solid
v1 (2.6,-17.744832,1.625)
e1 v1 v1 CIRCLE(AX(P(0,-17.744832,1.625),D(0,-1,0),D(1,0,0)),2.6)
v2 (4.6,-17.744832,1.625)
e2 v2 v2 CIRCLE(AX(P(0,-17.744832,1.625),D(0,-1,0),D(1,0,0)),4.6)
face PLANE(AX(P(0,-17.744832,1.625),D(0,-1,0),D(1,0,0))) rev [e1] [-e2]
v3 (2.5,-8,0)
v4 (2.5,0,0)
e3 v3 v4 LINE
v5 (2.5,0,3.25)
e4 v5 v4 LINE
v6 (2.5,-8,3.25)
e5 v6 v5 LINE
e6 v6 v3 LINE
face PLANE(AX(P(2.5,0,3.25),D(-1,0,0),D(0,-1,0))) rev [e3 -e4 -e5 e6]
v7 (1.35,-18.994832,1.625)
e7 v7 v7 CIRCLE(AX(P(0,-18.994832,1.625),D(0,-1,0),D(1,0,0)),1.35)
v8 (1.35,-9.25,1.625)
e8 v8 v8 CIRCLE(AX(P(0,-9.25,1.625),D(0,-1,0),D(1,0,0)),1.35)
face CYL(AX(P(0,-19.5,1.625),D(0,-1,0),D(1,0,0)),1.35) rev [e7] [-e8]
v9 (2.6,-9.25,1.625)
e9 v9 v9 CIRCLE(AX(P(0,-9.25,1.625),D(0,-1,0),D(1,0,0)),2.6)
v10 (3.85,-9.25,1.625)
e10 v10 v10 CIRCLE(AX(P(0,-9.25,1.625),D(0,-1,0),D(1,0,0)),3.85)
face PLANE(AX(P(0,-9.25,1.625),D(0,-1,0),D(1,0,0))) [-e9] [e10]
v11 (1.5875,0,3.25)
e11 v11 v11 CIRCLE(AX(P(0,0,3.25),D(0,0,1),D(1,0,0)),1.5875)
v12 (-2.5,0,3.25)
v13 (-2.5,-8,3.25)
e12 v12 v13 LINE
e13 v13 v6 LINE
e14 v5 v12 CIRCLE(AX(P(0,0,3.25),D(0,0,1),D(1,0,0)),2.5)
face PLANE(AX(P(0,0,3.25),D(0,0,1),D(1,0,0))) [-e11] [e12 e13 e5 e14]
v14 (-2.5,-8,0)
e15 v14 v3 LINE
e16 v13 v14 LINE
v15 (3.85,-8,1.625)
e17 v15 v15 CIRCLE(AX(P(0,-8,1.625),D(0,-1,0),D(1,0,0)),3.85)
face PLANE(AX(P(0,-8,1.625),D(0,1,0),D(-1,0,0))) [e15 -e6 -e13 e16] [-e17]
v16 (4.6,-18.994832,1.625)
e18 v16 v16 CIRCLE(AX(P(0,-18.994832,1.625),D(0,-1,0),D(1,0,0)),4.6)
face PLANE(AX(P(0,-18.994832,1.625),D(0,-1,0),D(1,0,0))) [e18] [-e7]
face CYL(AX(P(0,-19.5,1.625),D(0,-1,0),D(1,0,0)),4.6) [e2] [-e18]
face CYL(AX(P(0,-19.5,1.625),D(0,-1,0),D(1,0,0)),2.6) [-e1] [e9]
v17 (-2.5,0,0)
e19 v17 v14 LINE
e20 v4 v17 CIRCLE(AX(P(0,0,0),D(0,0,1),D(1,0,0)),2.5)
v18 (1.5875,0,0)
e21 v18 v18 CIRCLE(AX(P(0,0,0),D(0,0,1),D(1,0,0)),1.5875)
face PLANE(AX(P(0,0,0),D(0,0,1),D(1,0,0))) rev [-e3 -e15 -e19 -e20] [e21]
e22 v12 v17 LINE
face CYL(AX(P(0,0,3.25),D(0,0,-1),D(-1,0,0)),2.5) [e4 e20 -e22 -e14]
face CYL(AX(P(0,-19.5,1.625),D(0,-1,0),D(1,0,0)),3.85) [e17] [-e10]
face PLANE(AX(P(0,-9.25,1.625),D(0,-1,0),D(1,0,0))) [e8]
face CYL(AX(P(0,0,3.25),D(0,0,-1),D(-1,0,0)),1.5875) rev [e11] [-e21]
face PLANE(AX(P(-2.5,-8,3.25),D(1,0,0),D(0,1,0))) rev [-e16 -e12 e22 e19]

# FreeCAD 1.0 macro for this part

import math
import FreeCAD as App
import Part
import Sketcher
Q = App.Units.Quantity


def add_polygon(sketch, points):
    """Adds a closed chain of lines whose ends are joined by coincident constraints."""
    first, n = sketch.GeometryCount, len(points)
    for a, b in zip(points, points[1:] + points[:1]):
        sketch.addGeometry(Part.LineSegment(App.Vector(*a, 0), App.Vector(*b, 0)), False)
    for i in range(n):
        sketch.addConstraint(Sketcher.Constraint("Coincident", first + i, 2, first + (i + 1) % n, 1))

doc = App.newDocument("Part")
body = doc.addObject("PartDesign::Body", "Body")

sketch1 = body.newObject("Sketcher::SketchObject", "Sketch")
sketch1.AttachmentSupport = (doc.getObject("XY_Plane"), [""])
sketch1.MapMode = "FlatFace"
sketch1.addGeometry([
    Part.LineSegment(App.Vector(2.5, -8, 0), App.Vector(2.5, 0, 0)),
    Part.ArcOfCircle(Part.Circle(App.Vector(0, 0, 0), App.Vector(0, 0, 1), 2.5), math.radians(0), math.radians(180)),
    Part.LineSegment(App.Vector(-2.5, 0, 0), App.Vector(-2.5, -8, 0)),
    Part.LineSegment(App.Vector(-2.5, -8, 0), App.Vector(2.5, -8, 0)),
    Part.Circle(App.Vector(0, 0, 0), App.Vector(0, 0, 1), 1.6),
], False)
sketch1.addConstraint([
    Sketcher.Constraint("Tangent", 0, 2, 1, 1),
    Sketcher.Constraint("Tangent", 1, 2, 2, 1),
    Sketcher.Constraint("Coincident", 2, 2, 3, 1),
    Sketcher.Constraint("Coincident", 3, 2, 0, 1),
    Sketcher.Constraint("Vertical", 0),
    Sketcher.Constraint("Vertical", 2),
    Sketcher.Constraint("Horizontal", 3),
    Sketcher.Constraint("Coincident", 1, 3, -1, 1),
    Sketcher.Constraint("Coincident", 4, 3, -1, 1),
    Sketcher.Constraint("Radius", 1, Q("2.5 mm")),
    Sketcher.Constraint("DistanceY", 0, 1, 0, 2, Q("8 mm")),
    Sketcher.Constraint("Diameter", 4, Q("3.175 mm")),
])
pad1 = body.newObject("PartDesign::Pad", "Pad")
pad1.Profile = sketch1
pad1.Length = 3.25

sketch2 = body.newObject("Sketcher::SketchObject", "Sketch001")
sketch2.AttachmentSupport = (doc.getObject("XY_Plane"), [""])
sketch2.MapMode = "FlatFace"
sketch2.AttachmentOffset = App.Placement(App.Vector(0, 0, 1.625), App.Rotation())
add_polygon(sketch2, [(0, -8), (0, -9.2), (1.4, -9.2), (1.4, -19), (4.6, -19), (4.6, -17.7), (2.6, -17.7), (2.6, -9.2), (3.9, -9.2), (3.9, -8)])
sketch2.addConstraint([
    Sketcher.Constraint("Vertical", 0),
    Sketcher.Constraint("Horizontal", 1),
    Sketcher.Constraint("Vertical", 2),
    Sketcher.Constraint("Horizontal", 3),
    Sketcher.Constraint("Vertical", 4),
    Sketcher.Constraint("Horizontal", 5),
    Sketcher.Constraint("Vertical", 6),
    Sketcher.Constraint("Horizontal", 7),
    Sketcher.Constraint("Vertical", 8),
    Sketcher.Constraint("Horizontal", 9),
    Sketcher.Constraint("PointOnObject", 0, 2, -2),
    Sketcher.Constraint("Horizontal", 1, 2, 6, 2),
    Sketcher.Constraint("Equal", 7, 0),
    Sketcher.Constraint("Equal", 0, 4),
    Sketcher.Constraint("DistanceX", 5, 2, 5, 1, Q("2 mm")),
    Sketcher.Constraint("DistanceY", 8, 2, -1, 1, Q("8 mm")),
    Sketcher.Constraint("DistanceX", 1, 1, 1, 2, Q("1.35 mm")),
    Sketcher.Constraint("DistanceX", 3, 1, 3, 2, Q("3.25 mm")),
    Sketcher.Constraint("DistanceX", 7, 1, 7, 2, Q("1.25 mm")),
    Sketcher.Constraint("DistanceY", 2, 2, 2, 1, Q("9.744832 mm")),
])
revolution = body.newObject("PartDesign::Revolution", "Revolution")
revolution.Profile = sketch2
revolution.ReferenceAxis = (sketch2, ["V_Axis"])
revolution.Angle = 360

doc.recompute()
